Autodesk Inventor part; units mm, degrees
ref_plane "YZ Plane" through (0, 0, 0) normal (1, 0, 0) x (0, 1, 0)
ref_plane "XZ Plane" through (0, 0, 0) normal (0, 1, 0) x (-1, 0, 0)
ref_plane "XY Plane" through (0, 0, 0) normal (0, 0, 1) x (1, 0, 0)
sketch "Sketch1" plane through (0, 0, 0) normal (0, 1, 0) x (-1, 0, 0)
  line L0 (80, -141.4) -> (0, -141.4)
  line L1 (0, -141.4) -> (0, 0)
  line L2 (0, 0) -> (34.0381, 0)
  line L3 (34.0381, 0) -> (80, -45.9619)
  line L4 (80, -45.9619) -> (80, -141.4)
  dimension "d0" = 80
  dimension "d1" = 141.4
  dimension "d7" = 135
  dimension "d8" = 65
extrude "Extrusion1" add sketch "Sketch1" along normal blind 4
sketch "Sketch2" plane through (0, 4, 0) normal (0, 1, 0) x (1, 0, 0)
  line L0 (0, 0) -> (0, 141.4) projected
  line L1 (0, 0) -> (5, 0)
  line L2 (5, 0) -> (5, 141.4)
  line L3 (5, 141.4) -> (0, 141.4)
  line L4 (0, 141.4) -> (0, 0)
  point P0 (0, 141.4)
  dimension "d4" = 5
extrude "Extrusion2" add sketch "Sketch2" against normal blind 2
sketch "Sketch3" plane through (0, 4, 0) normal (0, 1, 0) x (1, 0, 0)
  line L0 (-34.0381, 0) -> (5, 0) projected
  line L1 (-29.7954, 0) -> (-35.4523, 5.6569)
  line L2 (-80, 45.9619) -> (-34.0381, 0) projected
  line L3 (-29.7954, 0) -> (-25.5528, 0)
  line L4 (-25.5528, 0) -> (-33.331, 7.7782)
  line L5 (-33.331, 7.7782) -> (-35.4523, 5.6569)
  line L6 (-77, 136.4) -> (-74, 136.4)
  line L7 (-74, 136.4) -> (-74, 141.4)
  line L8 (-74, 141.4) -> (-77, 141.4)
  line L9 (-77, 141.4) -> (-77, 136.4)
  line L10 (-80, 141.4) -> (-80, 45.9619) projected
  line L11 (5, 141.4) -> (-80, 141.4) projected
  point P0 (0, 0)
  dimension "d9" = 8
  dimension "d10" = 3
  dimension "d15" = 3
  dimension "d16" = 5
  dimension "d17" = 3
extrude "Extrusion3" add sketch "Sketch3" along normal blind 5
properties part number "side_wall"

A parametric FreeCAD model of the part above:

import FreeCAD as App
import Part
import Sketcher
from FreeCAD import Vector
Q = App.Units.Quantity

doc = App.newDocument("Part")
body = doc.addObject("PartDesign::Body", "Body")

sketch1 = body.newObject("Sketcher::SketchObject", "Sketch")
sketch1.AttachmentSupport = (doc.getObject("XZ_Plane"), [""])
sketch1.MapMode = "FlatFace"
sketch1.addGeometry([
    Part.LineSegment(Vector(0, -141.4, 0), Vector(-80, -141.4, 0)),
    Part.LineSegment(Vector(-80, -141.4, 0), Vector(-80, -45.9619, 0)),
    Part.LineSegment(Vector(-80, -45.9619, 0), Vector(-34.0381, 0, 0)),
    Part.LineSegment(Vector(-34.0381, 0, 0), Vector(0, 0, 0)),
    Part.LineSegment(Vector(0, 0, 0), Vector(0, -141.4, 0)),
], False)
sketch1.addConstraint([
    Sketcher.Constraint("Coincident", 0, 2, 1, 1),
    Sketcher.Constraint("Coincident", 1, 2, 2, 1),
    Sketcher.Constraint("Coincident", 2, 2, 3, 1),
    Sketcher.Constraint("Coincident", 3, 2, 4, 1),
    Sketcher.Constraint("Coincident", 4, 2, 0, 1),
    Sketcher.Constraint("Horizontal", 0),
    Sketcher.Constraint("Vertical", 1),
    Sketcher.Constraint("Horizontal", 3),
    Sketcher.Constraint("Vertical", 4),
    Sketcher.Constraint("Coincident", 3, 2, -1, 1),
    Sketcher.Constraint("DistanceX", 0, 2, 0, 1, Q("80 mm")),
    Sketcher.Constraint("Distance", 2, Q("65 mm")),
    Sketcher.Constraint("DistanceY", 4, 2, 4, 1, Q("141.4 mm")),
    Sketcher.Constraint("Angle", 2, Q("45 deg")),
])
pad1 = body.newObject("PartDesign::Pad", "Pad")
pad1.Profile = sketch1
pad1.Length = 4
pad1.Reversed = True

sketch2 = body.newObject("Sketcher::SketchObject", "Sketch001")
sketch2.AttachmentSupport = (doc.getObject("XZ_Plane"), [""])
sketch2.MapMode = "FlatFace"
sketch2.AttachmentOffset = App.Placement(Vector(0, 0, -4), App.Rotation())
sketch2.addGeometry([
    Part.LineSegment(Vector(0, -141.4, 0), Vector(0, 0, 0)),
    Part.LineSegment(Vector(0, 0, 0), Vector(5, 0, 0)),
    Part.LineSegment(Vector(5, 0, 0), Vector(5, -141.4, 0)),
    Part.LineSegment(Vector(5, -141.4, 0), Vector(0, -141.4, 0)),
], False)
sketch2.addConstraint([
    Sketcher.Constraint("Coincident", 0, 2, 1, 1),
    Sketcher.Constraint("Coincident", 1, 2, 2, 1),
    Sketcher.Constraint("Coincident", 2, 2, 3, 1),
    Sketcher.Constraint("Coincident", 3, 2, 0, 1),
    Sketcher.Constraint("Vertical", 0),
    Sketcher.Constraint("Horizontal", 1),
    Sketcher.Constraint("Vertical", 2),
    Sketcher.Constraint("Horizontal", 3),
    Sketcher.Constraint("Coincident", 0, 2, -1, 1),
    Sketcher.Constraint("DistanceX", 1, 1, 1, 2, Q("5 mm")),
    Sketcher.Constraint("DistanceY", 0, 1, 0, 2, Q("141.4 mm")),
])
pad2 = body.newObject("PartDesign::Pad", "Pad001")
pad2.Profile = sketch2
pad2.Length = 2

sketch3 = body.newObject("Sketcher::SketchObject", "Sketch002")
sketch3.AttachmentSupport = (doc.getObject("XZ_Plane"), [""])
sketch3.MapMode = "FlatFace"
sketch3.AttachmentOffset = App.Placement(Vector(0, 0, -4), App.Rotation())
sketch3.addGeometry([
    Part.LineSegment(Vector(-35.4523, -5.6569, 0), Vector(-29.7954, 0, 0)),
    Part.LineSegment(Vector(-29.7954, 0, 0), Vector(-25.5528, 0, 0)),
    Part.LineSegment(Vector(-25.5528, 0, 0), Vector(-33.331, -7.7782, 0)),
    Part.LineSegment(Vector(-33.331, -7.7782, 0), Vector(-35.4523, -5.6569, 0)),
    Part.LineSegment(Vector(-74, -141.4, 0), Vector(-77, -141.4, 0)),
    Part.LineSegment(Vector(-77, -141.4, 0), Vector(-77, -136.4, 0)),
    Part.LineSegment(Vector(-77, -136.4, 0), Vector(-74, -136.4, 0)),
    Part.LineSegment(Vector(-74, -136.4, 0), Vector(-74, -141.4, 0)),
], False)
sketch3.addConstraint([
    Sketcher.Constraint("Coincident", 0, 2, 1, 1),
    Sketcher.Constraint("Coincident", 1, 2, 2, 1),
    Sketcher.Constraint("Coincident", 2, 2, 3, 1),
    Sketcher.Constraint("Coincident", 3, 2, 0, 1),
    Sketcher.Constraint("Coincident", 4, 2, 5, 1),
    Sketcher.Constraint("Coincident", 5, 2, 6, 1),
    Sketcher.Constraint("Coincident", 6, 2, 7, 1),
    Sketcher.Constraint("Coincident", 7, 2, 4, 1),
    Sketcher.Constraint("Horizontal", 1),
    Sketcher.Constraint("Horizontal", 4),
    Sketcher.Constraint("Vertical", 5),
    Sketcher.Constraint("Horizontal", 6),
    Sketcher.Constraint("Vertical", 7),
    Sketcher.Constraint("PointOnObject", 0, 2, -1),
    Sketcher.Constraint("Parallel", 0, 2),
    Sketcher.Constraint("Perpendicular", 2, 3),
    Sketcher.Constraint("DistanceX", 4, 2, 4, 1, Q("3 mm")),
    Sketcher.Constraint("DistanceY", 5, 1, 5, 2, Q("5 mm")),
    Sketcher.Constraint("Distance", 0, Q("8 mm")),
    Sketcher.Constraint("Distance", 3, Q("3 mm")),
    Sketcher.Constraint("Angle", 0, Q("45 deg")),
    Sketcher.Constraint("DistanceX", 4, 2, -1, 1, Q("77 mm")),
    Sketcher.Constraint("DistanceY", 4, 2, -1, 1, Q("141.4 mm")),
    Sketcher.Constraint("DistanceX", 2, 2, -1, 1, Q("33.331 mm")),
])
pad3 = body.newObject("PartDesign::Pad", "Pad002")
pad3.Profile = sketch3
pad3.Length = 5
pad3.Reversed = True

doc.recompute()
